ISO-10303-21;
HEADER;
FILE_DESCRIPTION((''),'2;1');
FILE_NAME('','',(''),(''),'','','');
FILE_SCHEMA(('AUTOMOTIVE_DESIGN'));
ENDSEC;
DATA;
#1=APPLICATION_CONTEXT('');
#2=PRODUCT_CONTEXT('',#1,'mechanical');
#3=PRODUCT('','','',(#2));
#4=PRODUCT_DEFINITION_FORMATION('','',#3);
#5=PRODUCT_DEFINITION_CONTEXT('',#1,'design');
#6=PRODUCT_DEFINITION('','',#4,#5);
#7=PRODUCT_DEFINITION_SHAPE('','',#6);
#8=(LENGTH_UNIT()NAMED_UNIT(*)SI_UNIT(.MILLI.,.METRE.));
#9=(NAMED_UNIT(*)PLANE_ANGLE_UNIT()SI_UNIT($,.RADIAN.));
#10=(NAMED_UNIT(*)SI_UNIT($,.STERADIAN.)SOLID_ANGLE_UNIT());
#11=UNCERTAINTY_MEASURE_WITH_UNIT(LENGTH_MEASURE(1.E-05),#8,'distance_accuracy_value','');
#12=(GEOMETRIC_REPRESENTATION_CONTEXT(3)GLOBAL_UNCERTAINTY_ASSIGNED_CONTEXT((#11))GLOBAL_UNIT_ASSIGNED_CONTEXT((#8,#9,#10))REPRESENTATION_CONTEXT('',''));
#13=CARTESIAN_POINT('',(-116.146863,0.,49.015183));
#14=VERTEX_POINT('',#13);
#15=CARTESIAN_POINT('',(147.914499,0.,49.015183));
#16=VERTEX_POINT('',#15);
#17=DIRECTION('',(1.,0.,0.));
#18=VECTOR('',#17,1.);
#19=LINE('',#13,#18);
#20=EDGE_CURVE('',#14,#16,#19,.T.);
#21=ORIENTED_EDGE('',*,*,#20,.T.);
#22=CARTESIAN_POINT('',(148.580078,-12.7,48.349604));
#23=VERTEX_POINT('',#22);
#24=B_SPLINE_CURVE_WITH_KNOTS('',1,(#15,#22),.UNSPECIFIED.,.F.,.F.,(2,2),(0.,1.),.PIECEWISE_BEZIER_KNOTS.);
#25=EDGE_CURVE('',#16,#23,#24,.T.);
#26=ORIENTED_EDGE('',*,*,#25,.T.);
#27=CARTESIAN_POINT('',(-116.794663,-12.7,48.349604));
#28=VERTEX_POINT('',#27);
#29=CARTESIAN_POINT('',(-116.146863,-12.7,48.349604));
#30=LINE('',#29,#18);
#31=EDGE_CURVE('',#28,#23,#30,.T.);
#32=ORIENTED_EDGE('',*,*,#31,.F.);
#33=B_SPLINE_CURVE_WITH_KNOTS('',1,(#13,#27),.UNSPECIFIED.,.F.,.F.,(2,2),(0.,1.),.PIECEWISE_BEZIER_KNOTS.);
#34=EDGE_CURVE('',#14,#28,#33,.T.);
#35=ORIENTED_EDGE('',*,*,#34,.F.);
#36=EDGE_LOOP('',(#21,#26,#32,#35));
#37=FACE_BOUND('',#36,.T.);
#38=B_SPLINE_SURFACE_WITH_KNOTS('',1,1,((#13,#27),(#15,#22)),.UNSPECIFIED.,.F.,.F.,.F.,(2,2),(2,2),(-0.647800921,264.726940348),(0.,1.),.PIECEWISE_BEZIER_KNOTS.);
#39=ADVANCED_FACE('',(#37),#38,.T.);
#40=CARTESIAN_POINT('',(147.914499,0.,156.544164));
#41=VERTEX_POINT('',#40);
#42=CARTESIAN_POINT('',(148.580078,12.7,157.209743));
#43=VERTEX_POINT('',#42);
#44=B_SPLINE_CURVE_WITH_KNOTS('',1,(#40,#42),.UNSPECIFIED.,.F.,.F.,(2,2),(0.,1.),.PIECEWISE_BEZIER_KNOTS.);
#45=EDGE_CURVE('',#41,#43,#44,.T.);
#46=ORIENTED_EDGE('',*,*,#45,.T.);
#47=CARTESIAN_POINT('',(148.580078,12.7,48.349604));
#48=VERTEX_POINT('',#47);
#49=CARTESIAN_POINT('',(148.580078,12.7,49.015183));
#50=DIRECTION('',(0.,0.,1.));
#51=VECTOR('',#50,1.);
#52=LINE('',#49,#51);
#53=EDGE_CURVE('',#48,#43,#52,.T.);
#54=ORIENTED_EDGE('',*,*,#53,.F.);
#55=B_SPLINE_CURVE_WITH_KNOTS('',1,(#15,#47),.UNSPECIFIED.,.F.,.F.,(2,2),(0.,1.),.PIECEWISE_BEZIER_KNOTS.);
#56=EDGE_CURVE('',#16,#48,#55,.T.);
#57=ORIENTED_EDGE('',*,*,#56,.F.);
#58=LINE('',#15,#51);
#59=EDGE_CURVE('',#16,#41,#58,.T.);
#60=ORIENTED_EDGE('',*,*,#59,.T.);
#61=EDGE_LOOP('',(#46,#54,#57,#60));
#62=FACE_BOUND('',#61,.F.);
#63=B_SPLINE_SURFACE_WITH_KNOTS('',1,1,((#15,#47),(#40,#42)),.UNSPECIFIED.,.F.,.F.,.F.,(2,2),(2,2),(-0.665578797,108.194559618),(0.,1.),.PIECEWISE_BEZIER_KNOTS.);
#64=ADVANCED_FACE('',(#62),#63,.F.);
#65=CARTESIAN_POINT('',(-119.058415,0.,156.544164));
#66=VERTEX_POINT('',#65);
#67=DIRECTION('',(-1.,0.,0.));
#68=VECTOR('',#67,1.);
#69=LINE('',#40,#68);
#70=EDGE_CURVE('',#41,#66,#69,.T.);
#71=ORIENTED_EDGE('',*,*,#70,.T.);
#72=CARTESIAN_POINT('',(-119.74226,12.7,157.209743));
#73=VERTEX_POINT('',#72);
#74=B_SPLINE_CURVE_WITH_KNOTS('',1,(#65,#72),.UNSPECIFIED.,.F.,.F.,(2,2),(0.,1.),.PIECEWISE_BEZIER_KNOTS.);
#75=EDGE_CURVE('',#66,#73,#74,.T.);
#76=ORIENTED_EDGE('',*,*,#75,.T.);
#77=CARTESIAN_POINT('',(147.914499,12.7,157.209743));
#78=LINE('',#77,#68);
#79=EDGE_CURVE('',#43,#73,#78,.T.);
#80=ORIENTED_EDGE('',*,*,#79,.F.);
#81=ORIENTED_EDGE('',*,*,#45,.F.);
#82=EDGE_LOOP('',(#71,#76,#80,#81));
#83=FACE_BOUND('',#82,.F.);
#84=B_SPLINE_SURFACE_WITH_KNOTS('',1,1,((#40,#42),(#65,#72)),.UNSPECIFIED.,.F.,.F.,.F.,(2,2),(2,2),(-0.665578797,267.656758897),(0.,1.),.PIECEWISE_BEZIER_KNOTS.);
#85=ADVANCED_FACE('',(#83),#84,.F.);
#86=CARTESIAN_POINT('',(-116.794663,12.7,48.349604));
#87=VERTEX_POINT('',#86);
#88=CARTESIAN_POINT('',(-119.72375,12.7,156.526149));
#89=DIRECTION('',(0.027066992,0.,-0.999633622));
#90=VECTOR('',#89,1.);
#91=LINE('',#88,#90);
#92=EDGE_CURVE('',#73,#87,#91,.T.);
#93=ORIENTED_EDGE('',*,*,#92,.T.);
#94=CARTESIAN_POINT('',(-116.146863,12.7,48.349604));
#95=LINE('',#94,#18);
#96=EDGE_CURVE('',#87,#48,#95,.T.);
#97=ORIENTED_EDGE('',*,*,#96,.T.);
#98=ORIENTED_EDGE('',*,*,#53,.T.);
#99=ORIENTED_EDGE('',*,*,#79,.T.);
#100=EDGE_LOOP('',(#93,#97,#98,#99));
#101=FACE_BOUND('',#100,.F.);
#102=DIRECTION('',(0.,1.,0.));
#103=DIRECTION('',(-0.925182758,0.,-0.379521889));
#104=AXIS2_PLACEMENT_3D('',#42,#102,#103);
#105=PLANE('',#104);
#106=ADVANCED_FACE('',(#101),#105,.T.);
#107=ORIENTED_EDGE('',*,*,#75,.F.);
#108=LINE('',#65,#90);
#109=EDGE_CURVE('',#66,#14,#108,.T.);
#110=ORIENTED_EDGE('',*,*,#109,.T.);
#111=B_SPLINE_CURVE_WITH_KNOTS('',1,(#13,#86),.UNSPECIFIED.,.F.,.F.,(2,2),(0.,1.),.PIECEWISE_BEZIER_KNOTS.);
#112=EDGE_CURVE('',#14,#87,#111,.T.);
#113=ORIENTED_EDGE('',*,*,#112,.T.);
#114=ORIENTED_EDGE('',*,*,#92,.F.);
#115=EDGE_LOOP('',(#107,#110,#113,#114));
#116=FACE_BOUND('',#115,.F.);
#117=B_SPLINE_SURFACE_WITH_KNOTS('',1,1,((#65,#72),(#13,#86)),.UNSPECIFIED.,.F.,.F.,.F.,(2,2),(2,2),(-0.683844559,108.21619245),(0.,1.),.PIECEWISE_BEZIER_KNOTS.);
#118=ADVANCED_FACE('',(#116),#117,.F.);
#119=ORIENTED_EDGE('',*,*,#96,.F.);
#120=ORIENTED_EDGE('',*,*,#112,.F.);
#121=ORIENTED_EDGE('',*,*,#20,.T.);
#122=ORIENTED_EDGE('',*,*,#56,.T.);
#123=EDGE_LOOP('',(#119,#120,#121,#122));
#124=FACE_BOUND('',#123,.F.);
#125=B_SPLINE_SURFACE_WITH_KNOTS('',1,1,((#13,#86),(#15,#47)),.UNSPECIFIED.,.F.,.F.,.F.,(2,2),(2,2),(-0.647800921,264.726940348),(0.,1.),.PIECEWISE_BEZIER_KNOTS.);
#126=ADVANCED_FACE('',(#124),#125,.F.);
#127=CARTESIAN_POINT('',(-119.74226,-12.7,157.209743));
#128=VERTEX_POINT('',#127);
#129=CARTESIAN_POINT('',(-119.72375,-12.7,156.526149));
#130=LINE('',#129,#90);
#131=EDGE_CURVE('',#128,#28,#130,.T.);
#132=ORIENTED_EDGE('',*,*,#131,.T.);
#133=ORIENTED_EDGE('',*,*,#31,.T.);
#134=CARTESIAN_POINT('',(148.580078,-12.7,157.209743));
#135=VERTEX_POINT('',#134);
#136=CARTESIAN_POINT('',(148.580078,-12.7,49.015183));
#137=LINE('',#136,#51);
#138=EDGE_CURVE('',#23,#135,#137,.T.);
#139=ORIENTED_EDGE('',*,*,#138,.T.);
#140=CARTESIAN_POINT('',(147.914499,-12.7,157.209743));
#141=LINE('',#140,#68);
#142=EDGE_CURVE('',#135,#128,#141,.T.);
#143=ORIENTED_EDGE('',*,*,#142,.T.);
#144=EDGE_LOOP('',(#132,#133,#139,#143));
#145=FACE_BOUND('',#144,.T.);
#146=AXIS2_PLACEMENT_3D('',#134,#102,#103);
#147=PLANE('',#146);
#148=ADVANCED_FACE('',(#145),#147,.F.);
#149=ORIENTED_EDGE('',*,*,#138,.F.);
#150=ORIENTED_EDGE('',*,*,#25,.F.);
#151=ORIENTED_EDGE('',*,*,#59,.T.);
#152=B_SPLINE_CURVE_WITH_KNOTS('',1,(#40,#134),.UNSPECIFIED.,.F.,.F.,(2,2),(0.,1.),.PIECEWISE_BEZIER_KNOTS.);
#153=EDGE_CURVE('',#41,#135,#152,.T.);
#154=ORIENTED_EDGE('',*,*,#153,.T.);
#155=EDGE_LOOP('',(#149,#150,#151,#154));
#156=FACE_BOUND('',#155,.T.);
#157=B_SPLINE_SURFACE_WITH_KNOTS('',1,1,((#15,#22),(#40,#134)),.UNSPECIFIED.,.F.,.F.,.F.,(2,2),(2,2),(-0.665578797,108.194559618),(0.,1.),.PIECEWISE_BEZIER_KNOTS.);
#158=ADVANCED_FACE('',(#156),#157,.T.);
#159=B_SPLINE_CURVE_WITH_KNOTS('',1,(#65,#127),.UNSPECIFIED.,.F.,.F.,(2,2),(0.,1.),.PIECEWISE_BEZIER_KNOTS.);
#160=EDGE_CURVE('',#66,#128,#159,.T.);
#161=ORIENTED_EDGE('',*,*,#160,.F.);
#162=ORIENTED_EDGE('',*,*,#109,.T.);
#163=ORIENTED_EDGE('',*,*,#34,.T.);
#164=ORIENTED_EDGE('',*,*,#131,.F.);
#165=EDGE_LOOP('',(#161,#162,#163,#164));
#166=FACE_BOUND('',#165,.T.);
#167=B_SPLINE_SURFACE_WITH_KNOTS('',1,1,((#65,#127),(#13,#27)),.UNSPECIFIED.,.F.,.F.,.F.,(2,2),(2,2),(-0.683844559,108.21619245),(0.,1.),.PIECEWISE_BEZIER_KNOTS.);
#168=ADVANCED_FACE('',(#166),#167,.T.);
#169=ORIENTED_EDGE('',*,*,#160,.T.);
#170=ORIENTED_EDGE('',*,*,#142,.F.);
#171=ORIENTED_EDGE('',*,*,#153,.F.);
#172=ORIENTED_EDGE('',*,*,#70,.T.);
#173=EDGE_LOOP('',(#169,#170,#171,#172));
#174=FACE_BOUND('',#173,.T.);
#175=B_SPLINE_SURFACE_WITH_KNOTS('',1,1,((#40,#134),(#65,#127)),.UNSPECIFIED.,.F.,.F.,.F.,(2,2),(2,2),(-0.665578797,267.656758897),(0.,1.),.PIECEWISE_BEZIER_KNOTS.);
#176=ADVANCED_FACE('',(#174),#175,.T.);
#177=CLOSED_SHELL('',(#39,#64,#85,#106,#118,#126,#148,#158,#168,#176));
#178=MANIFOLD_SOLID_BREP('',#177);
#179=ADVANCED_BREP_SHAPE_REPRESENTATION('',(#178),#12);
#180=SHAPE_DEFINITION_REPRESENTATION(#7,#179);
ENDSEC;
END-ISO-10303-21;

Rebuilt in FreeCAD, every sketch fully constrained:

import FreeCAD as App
import Part
import Sketcher

V = App.Vector
Q = App.Units.Quantity

doc = App.newDocument("Part")
body = doc.addObject("PartDesign::Body", "Body")

# Sketch on XZ plane
sketch1 = doc.addObject("Sketcher::SketchObject", "Sketch")
body.addObject(sketch1)
sketch1.AttachmentSupport = (doc.XZ_Plane, [""])
sketch1.MapMode = "FlatFace"
sketch1.addGeometry([
    Part.LineSegment(V(148, 157, 0), V(-119, 157, 0)),
    Part.LineSegment(V(-119, 157, 0), V(-116, 49, 0)),
    Part.LineSegment(V(-116, 49, 0), V(148, 49, 0)),
    Part.LineSegment(V(148, 49, 0), V(148, 157, 0)),
], False)
sketch1.addConstraint([
    Sketcher.Constraint("Coincident", 0, 2, 1, 1),
    Sketcher.Constraint("Coincident", 1, 2, 2, 1),
    Sketcher.Constraint("Coincident", 2, 2, 3, 1),
    Sketcher.Constraint("Coincident", 3, 2, 0, 1),
    Sketcher.Constraint("Horizontal", 0),
    Sketcher.Constraint("Horizontal", 2),
    Sketcher.Constraint("Vertical", 3),
    Sketcher.Constraint("DistanceX", 2, 1, 2, 2, Q("264.061362 mm")),
    Sketcher.Constraint("DistanceY", 3, 1, 3, 2, Q("107.528981 mm")),
    Sketcher.Constraint("DistanceX", -1, 1, 2, 2, Q("147.914499 mm")),
    Sketcher.Constraint("Distance", 1, Q("107.568392 mm")),
    Sketcher.Constraint("DistanceY", -1, 1, 0, 2, Q("156.544164 mm")),
])
pad1 = doc.addObject("PartDesign::Pad", "Pad")
body.addObject(pad1)
pad1.Profile = sketch1
pad1.Length = Q("1 in")
pad1.Midplane = True
pad1.TaperAngle = 3

doc.recompute()
